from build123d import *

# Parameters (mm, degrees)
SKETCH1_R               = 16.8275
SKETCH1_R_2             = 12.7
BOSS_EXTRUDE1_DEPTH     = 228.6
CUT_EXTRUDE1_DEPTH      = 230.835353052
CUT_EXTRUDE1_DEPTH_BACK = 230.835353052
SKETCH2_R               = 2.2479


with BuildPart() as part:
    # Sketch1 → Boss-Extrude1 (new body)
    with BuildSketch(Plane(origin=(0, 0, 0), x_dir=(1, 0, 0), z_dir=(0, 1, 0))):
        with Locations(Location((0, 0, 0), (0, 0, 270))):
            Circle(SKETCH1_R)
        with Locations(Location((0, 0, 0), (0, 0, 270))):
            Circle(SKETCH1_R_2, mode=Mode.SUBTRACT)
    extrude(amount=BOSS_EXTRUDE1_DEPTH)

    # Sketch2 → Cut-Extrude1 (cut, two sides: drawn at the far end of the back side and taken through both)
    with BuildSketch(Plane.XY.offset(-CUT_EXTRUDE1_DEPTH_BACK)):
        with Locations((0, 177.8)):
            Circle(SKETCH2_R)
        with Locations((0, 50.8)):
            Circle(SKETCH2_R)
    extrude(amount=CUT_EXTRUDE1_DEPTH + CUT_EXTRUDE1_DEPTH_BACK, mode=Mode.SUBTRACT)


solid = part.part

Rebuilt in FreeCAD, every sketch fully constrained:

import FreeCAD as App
import Part
import Sketcher

V = App.Vector
Q = App.Units.Quantity

doc = App.newDocument("Part")
body = doc.addObject("PartDesign::Body", "Body")

# Sketch on XZ plane
sketch1 = doc.addObject("Sketcher::SketchObject", "Sketch")
body.addObject(sketch1)
sketch1.AttachmentSupport = (doc.XZ_Plane, [""])
sketch1.MapMode = "FlatFace"
sketch1.addGeometry([
    Part.Circle(V(0, 0, 0), V(0, 0, 1), 16.8275),
    Part.Circle(V(0, 0, 0), V(0, 0, 1), 12.7),
], False)
sketch1.addConstraint([
    Sketcher.Constraint("Coincident", 0, 3, -1, 1),
    Sketcher.Constraint("Coincident", 1, 3, -1, 1),
    Sketcher.Constraint("Diameter", 1, Q("1 in")),
    Sketcher.Constraint("Diameter", 0, Q("1.325 in")),
])
pad1 = doc.addObject("PartDesign::Pad", "Pad")
body.addObject(pad1)
pad1.Profile = sketch1
pad1.Length = Q("9 in")
pad1.Reversed = True

# Sketch on XY plane
sketch2 = doc.addObject("Sketcher::SketchObject", "Sketch001")
body.addObject(sketch2)
sketch2.AttachmentSupport = (doc.XY_Plane, [""])
sketch2.MapMode = "FlatFace"
sketch2.addGeometry([
    Part.Circle(V(0, 177.8, 0), V(0, 0, 1), 2.2479),
    Part.Circle(V(0, 50.8, 0), V(0, 0, 1), 2.2479),
], False)
sketch2.addConstraint([
    Sketcher.Constraint("Equal", 0, 1),
    Sketcher.Constraint("PointOnObject", 0, 3, -2),
    Sketcher.Constraint("PointOnObject", 1, 3, -2),
    Sketcher.Constraint("Diameter", 0, Q("0.177 in")),
    Sketcher.Constraint("DistanceY", -1, 1, 0, 3, Q("7 in")),
    Sketcher.Constraint("DistanceY", -1, 1, 1, 3, Q("2 in")),
])
pocket1 = doc.addObject("PartDesign::Pocket", "Pocket")
body.addObject(pocket1)
pocket1.Profile = sketch2
pocket1.Type = "ThroughAll"
pocket1.Midplane = True

doc.recompute()
